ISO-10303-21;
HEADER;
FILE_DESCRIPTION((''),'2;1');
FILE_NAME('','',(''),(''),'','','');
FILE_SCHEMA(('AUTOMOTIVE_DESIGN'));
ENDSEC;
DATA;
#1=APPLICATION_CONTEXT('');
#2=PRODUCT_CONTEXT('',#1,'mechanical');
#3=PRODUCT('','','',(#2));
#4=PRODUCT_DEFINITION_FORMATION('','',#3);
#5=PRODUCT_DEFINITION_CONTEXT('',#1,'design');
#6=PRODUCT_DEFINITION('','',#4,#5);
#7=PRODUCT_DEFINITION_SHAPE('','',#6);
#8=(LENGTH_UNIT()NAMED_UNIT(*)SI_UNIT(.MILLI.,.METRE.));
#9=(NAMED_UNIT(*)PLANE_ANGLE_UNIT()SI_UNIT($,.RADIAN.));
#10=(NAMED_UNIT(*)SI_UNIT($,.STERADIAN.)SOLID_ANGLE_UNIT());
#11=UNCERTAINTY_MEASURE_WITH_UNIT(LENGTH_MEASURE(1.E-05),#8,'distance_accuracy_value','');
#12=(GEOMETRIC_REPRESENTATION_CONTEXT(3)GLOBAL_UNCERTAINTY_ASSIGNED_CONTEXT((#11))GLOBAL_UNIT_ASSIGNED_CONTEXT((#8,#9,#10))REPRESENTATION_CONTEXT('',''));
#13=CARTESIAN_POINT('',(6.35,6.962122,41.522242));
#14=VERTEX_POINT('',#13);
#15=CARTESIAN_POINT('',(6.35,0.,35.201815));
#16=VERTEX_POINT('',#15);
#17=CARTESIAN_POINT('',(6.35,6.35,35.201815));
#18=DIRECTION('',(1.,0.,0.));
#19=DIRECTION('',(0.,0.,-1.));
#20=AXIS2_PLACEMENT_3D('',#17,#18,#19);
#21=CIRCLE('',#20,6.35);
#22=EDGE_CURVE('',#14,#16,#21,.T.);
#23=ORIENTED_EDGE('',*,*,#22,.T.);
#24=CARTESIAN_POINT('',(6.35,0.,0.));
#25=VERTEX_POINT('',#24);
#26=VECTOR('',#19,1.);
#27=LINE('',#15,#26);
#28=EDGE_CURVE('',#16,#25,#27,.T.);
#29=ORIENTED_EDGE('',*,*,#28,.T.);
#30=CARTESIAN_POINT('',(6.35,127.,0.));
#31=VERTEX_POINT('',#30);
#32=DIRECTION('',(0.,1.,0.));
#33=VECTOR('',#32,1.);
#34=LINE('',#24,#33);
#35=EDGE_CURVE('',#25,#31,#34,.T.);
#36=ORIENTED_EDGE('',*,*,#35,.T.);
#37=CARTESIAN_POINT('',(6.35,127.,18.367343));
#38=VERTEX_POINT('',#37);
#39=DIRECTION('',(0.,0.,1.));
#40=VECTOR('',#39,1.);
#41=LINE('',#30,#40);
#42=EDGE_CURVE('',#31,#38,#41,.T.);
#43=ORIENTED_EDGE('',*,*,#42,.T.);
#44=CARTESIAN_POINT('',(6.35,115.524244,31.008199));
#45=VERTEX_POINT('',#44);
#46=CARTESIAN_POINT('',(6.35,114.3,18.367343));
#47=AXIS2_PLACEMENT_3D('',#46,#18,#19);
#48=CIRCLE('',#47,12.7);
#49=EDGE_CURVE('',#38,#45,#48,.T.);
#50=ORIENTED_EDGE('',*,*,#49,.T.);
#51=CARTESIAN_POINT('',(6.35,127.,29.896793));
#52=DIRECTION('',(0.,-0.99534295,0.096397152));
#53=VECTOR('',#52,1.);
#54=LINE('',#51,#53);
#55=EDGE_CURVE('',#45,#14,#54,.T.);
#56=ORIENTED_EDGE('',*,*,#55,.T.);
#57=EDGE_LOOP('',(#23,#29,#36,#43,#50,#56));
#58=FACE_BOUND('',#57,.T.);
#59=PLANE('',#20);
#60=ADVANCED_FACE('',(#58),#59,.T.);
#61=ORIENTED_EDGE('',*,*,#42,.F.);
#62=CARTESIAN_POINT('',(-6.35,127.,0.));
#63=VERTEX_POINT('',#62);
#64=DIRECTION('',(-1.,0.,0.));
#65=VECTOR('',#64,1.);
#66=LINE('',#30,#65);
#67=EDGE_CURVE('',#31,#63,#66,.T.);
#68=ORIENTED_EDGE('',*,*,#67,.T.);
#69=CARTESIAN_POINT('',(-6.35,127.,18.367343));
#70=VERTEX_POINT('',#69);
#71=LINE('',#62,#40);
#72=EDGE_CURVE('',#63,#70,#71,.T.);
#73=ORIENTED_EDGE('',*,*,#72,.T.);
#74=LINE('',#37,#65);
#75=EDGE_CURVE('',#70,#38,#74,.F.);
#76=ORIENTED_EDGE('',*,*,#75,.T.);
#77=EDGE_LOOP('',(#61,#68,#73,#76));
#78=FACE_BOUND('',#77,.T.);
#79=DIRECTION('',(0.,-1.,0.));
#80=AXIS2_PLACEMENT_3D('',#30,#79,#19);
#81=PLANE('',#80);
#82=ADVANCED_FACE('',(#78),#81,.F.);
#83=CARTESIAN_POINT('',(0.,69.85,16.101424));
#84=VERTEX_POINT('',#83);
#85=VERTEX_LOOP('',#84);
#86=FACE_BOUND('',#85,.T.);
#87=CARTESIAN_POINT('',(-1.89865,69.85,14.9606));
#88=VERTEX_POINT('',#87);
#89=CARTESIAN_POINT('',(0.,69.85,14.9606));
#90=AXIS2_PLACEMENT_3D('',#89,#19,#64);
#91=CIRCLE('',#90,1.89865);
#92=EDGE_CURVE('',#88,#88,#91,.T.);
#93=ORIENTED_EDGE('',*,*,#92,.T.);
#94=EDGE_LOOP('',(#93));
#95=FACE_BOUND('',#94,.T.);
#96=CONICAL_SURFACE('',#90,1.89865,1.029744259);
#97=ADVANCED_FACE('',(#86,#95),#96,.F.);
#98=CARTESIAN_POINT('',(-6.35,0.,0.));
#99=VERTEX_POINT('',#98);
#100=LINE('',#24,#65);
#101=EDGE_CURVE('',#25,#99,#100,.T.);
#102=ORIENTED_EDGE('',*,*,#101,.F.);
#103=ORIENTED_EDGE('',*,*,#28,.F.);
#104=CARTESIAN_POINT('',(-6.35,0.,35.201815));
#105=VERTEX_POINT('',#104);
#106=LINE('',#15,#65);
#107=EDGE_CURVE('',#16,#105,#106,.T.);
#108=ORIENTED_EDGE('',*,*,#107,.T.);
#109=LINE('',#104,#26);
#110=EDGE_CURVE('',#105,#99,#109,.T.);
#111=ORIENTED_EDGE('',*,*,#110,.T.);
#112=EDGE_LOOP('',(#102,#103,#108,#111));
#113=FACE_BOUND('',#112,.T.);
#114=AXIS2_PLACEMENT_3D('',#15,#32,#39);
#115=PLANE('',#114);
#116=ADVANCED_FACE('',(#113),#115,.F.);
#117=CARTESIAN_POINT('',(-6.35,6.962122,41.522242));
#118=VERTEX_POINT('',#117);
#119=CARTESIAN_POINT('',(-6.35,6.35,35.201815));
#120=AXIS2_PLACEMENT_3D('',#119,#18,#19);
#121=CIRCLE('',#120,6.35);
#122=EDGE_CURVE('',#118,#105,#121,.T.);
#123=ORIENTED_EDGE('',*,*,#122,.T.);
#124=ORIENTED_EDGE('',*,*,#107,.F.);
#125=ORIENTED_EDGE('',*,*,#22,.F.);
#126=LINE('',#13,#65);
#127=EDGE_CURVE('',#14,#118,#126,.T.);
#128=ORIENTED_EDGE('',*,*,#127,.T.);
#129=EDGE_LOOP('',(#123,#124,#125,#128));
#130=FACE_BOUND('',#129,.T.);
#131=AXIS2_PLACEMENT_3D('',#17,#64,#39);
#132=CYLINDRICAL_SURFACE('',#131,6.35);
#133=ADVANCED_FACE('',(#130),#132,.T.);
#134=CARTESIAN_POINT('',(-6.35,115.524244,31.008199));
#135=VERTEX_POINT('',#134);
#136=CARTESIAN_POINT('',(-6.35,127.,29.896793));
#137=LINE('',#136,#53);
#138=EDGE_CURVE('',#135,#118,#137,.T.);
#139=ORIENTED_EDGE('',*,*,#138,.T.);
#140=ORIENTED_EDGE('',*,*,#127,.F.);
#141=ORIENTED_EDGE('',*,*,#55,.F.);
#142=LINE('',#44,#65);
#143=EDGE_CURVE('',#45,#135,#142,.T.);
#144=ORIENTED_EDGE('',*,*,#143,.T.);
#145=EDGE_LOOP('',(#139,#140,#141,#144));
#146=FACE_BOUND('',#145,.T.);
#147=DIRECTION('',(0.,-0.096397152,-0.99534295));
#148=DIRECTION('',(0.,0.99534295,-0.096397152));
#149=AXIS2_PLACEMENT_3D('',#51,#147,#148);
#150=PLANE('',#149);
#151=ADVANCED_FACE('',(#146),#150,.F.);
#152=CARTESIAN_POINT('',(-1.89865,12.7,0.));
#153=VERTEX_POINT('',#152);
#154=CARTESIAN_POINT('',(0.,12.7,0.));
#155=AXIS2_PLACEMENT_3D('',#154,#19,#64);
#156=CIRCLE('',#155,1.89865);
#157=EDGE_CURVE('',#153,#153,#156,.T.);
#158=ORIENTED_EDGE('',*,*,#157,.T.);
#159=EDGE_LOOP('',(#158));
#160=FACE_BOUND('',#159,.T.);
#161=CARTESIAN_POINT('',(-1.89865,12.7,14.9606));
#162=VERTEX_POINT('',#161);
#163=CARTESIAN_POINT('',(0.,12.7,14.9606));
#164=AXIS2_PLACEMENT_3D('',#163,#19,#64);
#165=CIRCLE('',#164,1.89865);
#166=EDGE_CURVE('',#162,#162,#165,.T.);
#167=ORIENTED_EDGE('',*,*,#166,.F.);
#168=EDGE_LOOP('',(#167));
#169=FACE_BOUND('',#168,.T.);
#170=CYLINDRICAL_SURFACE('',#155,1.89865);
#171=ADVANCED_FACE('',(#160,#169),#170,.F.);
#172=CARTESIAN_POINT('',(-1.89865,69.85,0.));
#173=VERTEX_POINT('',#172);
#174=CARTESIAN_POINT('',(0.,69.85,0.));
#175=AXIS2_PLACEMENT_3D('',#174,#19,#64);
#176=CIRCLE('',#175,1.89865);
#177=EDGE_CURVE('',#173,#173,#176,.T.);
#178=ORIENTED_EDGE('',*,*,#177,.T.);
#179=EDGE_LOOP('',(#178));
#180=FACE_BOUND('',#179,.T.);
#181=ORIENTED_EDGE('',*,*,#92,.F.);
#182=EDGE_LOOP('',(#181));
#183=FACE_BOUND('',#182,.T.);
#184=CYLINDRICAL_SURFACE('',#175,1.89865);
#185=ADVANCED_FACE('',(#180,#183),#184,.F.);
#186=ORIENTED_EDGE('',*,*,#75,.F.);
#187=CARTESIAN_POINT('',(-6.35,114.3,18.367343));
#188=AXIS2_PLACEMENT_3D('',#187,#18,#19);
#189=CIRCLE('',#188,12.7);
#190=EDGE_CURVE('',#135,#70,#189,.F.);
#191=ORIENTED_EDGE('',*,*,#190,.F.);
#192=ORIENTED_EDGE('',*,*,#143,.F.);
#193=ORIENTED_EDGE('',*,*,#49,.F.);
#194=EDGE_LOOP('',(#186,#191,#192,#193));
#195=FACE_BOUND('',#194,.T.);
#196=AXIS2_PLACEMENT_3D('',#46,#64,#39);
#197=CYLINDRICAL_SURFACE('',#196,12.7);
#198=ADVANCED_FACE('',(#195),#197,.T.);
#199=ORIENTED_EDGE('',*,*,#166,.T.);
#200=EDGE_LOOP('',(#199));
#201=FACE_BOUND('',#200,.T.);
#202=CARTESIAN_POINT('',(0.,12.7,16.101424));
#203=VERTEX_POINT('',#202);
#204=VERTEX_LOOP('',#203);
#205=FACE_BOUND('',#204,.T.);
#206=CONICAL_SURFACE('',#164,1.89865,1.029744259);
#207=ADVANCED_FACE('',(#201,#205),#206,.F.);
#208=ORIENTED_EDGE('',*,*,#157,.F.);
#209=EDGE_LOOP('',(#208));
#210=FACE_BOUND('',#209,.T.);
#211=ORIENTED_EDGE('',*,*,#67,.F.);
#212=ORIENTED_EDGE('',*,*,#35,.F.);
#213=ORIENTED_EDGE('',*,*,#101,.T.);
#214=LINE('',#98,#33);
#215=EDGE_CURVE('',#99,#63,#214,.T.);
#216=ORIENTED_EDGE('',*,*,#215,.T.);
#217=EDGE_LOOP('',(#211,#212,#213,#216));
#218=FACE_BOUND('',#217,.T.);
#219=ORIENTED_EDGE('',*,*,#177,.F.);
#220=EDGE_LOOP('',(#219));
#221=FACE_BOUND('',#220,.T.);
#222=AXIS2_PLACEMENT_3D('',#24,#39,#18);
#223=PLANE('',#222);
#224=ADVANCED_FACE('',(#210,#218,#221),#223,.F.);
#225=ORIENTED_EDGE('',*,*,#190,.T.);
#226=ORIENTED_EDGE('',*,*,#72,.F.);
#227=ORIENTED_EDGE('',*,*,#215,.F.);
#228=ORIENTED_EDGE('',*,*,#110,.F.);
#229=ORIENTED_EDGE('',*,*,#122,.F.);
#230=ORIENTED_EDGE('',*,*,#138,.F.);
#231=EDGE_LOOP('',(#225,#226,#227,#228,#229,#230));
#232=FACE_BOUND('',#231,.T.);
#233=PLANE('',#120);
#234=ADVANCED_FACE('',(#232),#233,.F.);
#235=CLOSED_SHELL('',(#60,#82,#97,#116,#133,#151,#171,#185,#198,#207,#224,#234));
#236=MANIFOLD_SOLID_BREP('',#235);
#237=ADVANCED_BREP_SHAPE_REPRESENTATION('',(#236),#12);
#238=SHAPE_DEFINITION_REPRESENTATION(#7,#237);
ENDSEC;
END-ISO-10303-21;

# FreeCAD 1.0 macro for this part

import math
import FreeCAD as App
import Part
import Sketcher
Q = App.Units.Quantity


def edges_at(feature, points):
    """Names of the edges that pass closest to the given points."""
    edges = feature.Shape.Edges
    near = lambda p: min(range(len(edges)), key=lambda i: edges[i].distToShape(Part.Vertex(*p))[0])
    return sorted({f"Edge{near(p) + 1}" for p in points})

doc = App.newDocument("Part")
body = doc.addObject("PartDesign::Body", "Body")

# Sketch on YZ plane
sketch1 = body.newObject("Sketcher::SketchObject", "Sketch")
sketch1.AttachmentSupport = (doc.getObject("YZ_Plane"), [""])
sketch1.MapMode = "FlatFace"
sketch1.addGeometry(Part.LineSegment(App.Vector(0, 0, 0), App.Vector(127, 0, 0)), False)
sketch1.addGeometry(Part.LineSegment(App.Vector(127, 0, 0), App.Vector(127, 30, 0)), False)
sketch1.addGeometry(Part.LineSegment(App.Vector(127, 30, 0), App.Vector(7, 42, 0)), False)
sketch1.addGeometry(Part.ArcOfCircle(Part.Circle(App.Vector(6, 35, 0), App.Vector(0, 0, 1), 6), math.radians(84), math.radians(180)), False)
sketch1.addGeometry(Part.LineSegment(App.Vector(0, 35, 0), App.Vector(0, 0, 0)), False)
sketch1.addConstraint(Sketcher.Constraint("Coincident", 0, 2, 1, 1))
sketch1.addConstraint(Sketcher.Constraint("Coincident", 1, 2, 2, 1))
sketch1.addConstraint(Sketcher.Constraint("Tangent", 2, 2, 3, 1))
sketch1.addConstraint(Sketcher.Constraint("Tangent", 3, 2, 4, 1))
sketch1.addConstraint(Sketcher.Constraint("Coincident", 4, 2, 0, 1))
sketch1.addConstraint(Sketcher.Constraint("Horizontal", 0))
sketch1.addConstraint(Sketcher.Constraint("Vertical", 1))
sketch1.addConstraint(Sketcher.Constraint("Vertical", 4))
sketch1.addConstraint(Sketcher.Constraint("Coincident", 4, 2, -1, 1))
sketch1.addConstraint(Sketcher.Constraint("DistanceX", 0, 1, 0, 2, Q("5 in")))
sketch1.addConstraint(Sketcher.Constraint("Radius", 3, Q("0.25 in")))
sketch1.addConstraint(Sketcher.Constraint("DistanceY", 1, 1, 1, 2, Q("29.896793 mm")))
sketch1.addConstraint(Sketcher.Constraint("DistanceY", 4, 2, 4, 1, Q("35.201815 mm")))
pad1 = body.newObject("PartDesign::Pad", "Pad")
pad1.Profile = sketch1
pad1.Length = Q("0.5 in")
pad1.Midplane = True

# Sketch on XY plane
sketch2 = body.newObject("Sketcher::SketchObject", "Sketch001")
sketch2.AttachmentSupport = (doc.getObject("XY_Plane"), [""])
sketch2.MapMode = "FlatFace"
sketch2.addGeometry(Part.Circle(App.Vector(0, 12.7, 0), App.Vector(0, 0, 1), 1.9), False)
sketch2.addGeometry(Part.Circle(App.Vector(0, 69.8, 0), App.Vector(0, 0, 1), 1.9), False)
sketch2.addConstraint(Sketcher.Constraint("Equal", 0, 1))
sketch2.addConstraint(Sketcher.Constraint("PointOnObject", 0, 3, -2))
sketch2.addConstraint(Sketcher.Constraint("PointOnObject", 1, 3, -2))
sketch2.addConstraint(Sketcher.Constraint("Diameter", 0, Q("0.1495 in")))
sketch2.addConstraint(Sketcher.Constraint("DistanceY", -1, 1, 0, 3, Q("0.5 in")))
sketch2.addConstraint(Sketcher.Constraint("DistanceY", -1, 1, 1, 3, Q("2.75 in")))
doc.recompute()
hole = body.newObject("PartDesign::Hole", "Hole")
hole.Profile = sketch2
hole.ThreadType = "None"
hole.Diameter = Q("0.1495 in")
hole.DepthType = "Dimension"
hole.Depth = Q("0.589 in")
hole.DrillPoint = "Angled"
hole.DrillPointAngle = 118
hole.Reversed = True
doc.recompute()

fillet = body.newObject("PartDesign::Fillet", "Fillet")
fillet.Base = (hole, edges_at(hole, [(0, 127, 29.897)]))
fillet.Radius = Q("0.5 in")

doc.recompute()
